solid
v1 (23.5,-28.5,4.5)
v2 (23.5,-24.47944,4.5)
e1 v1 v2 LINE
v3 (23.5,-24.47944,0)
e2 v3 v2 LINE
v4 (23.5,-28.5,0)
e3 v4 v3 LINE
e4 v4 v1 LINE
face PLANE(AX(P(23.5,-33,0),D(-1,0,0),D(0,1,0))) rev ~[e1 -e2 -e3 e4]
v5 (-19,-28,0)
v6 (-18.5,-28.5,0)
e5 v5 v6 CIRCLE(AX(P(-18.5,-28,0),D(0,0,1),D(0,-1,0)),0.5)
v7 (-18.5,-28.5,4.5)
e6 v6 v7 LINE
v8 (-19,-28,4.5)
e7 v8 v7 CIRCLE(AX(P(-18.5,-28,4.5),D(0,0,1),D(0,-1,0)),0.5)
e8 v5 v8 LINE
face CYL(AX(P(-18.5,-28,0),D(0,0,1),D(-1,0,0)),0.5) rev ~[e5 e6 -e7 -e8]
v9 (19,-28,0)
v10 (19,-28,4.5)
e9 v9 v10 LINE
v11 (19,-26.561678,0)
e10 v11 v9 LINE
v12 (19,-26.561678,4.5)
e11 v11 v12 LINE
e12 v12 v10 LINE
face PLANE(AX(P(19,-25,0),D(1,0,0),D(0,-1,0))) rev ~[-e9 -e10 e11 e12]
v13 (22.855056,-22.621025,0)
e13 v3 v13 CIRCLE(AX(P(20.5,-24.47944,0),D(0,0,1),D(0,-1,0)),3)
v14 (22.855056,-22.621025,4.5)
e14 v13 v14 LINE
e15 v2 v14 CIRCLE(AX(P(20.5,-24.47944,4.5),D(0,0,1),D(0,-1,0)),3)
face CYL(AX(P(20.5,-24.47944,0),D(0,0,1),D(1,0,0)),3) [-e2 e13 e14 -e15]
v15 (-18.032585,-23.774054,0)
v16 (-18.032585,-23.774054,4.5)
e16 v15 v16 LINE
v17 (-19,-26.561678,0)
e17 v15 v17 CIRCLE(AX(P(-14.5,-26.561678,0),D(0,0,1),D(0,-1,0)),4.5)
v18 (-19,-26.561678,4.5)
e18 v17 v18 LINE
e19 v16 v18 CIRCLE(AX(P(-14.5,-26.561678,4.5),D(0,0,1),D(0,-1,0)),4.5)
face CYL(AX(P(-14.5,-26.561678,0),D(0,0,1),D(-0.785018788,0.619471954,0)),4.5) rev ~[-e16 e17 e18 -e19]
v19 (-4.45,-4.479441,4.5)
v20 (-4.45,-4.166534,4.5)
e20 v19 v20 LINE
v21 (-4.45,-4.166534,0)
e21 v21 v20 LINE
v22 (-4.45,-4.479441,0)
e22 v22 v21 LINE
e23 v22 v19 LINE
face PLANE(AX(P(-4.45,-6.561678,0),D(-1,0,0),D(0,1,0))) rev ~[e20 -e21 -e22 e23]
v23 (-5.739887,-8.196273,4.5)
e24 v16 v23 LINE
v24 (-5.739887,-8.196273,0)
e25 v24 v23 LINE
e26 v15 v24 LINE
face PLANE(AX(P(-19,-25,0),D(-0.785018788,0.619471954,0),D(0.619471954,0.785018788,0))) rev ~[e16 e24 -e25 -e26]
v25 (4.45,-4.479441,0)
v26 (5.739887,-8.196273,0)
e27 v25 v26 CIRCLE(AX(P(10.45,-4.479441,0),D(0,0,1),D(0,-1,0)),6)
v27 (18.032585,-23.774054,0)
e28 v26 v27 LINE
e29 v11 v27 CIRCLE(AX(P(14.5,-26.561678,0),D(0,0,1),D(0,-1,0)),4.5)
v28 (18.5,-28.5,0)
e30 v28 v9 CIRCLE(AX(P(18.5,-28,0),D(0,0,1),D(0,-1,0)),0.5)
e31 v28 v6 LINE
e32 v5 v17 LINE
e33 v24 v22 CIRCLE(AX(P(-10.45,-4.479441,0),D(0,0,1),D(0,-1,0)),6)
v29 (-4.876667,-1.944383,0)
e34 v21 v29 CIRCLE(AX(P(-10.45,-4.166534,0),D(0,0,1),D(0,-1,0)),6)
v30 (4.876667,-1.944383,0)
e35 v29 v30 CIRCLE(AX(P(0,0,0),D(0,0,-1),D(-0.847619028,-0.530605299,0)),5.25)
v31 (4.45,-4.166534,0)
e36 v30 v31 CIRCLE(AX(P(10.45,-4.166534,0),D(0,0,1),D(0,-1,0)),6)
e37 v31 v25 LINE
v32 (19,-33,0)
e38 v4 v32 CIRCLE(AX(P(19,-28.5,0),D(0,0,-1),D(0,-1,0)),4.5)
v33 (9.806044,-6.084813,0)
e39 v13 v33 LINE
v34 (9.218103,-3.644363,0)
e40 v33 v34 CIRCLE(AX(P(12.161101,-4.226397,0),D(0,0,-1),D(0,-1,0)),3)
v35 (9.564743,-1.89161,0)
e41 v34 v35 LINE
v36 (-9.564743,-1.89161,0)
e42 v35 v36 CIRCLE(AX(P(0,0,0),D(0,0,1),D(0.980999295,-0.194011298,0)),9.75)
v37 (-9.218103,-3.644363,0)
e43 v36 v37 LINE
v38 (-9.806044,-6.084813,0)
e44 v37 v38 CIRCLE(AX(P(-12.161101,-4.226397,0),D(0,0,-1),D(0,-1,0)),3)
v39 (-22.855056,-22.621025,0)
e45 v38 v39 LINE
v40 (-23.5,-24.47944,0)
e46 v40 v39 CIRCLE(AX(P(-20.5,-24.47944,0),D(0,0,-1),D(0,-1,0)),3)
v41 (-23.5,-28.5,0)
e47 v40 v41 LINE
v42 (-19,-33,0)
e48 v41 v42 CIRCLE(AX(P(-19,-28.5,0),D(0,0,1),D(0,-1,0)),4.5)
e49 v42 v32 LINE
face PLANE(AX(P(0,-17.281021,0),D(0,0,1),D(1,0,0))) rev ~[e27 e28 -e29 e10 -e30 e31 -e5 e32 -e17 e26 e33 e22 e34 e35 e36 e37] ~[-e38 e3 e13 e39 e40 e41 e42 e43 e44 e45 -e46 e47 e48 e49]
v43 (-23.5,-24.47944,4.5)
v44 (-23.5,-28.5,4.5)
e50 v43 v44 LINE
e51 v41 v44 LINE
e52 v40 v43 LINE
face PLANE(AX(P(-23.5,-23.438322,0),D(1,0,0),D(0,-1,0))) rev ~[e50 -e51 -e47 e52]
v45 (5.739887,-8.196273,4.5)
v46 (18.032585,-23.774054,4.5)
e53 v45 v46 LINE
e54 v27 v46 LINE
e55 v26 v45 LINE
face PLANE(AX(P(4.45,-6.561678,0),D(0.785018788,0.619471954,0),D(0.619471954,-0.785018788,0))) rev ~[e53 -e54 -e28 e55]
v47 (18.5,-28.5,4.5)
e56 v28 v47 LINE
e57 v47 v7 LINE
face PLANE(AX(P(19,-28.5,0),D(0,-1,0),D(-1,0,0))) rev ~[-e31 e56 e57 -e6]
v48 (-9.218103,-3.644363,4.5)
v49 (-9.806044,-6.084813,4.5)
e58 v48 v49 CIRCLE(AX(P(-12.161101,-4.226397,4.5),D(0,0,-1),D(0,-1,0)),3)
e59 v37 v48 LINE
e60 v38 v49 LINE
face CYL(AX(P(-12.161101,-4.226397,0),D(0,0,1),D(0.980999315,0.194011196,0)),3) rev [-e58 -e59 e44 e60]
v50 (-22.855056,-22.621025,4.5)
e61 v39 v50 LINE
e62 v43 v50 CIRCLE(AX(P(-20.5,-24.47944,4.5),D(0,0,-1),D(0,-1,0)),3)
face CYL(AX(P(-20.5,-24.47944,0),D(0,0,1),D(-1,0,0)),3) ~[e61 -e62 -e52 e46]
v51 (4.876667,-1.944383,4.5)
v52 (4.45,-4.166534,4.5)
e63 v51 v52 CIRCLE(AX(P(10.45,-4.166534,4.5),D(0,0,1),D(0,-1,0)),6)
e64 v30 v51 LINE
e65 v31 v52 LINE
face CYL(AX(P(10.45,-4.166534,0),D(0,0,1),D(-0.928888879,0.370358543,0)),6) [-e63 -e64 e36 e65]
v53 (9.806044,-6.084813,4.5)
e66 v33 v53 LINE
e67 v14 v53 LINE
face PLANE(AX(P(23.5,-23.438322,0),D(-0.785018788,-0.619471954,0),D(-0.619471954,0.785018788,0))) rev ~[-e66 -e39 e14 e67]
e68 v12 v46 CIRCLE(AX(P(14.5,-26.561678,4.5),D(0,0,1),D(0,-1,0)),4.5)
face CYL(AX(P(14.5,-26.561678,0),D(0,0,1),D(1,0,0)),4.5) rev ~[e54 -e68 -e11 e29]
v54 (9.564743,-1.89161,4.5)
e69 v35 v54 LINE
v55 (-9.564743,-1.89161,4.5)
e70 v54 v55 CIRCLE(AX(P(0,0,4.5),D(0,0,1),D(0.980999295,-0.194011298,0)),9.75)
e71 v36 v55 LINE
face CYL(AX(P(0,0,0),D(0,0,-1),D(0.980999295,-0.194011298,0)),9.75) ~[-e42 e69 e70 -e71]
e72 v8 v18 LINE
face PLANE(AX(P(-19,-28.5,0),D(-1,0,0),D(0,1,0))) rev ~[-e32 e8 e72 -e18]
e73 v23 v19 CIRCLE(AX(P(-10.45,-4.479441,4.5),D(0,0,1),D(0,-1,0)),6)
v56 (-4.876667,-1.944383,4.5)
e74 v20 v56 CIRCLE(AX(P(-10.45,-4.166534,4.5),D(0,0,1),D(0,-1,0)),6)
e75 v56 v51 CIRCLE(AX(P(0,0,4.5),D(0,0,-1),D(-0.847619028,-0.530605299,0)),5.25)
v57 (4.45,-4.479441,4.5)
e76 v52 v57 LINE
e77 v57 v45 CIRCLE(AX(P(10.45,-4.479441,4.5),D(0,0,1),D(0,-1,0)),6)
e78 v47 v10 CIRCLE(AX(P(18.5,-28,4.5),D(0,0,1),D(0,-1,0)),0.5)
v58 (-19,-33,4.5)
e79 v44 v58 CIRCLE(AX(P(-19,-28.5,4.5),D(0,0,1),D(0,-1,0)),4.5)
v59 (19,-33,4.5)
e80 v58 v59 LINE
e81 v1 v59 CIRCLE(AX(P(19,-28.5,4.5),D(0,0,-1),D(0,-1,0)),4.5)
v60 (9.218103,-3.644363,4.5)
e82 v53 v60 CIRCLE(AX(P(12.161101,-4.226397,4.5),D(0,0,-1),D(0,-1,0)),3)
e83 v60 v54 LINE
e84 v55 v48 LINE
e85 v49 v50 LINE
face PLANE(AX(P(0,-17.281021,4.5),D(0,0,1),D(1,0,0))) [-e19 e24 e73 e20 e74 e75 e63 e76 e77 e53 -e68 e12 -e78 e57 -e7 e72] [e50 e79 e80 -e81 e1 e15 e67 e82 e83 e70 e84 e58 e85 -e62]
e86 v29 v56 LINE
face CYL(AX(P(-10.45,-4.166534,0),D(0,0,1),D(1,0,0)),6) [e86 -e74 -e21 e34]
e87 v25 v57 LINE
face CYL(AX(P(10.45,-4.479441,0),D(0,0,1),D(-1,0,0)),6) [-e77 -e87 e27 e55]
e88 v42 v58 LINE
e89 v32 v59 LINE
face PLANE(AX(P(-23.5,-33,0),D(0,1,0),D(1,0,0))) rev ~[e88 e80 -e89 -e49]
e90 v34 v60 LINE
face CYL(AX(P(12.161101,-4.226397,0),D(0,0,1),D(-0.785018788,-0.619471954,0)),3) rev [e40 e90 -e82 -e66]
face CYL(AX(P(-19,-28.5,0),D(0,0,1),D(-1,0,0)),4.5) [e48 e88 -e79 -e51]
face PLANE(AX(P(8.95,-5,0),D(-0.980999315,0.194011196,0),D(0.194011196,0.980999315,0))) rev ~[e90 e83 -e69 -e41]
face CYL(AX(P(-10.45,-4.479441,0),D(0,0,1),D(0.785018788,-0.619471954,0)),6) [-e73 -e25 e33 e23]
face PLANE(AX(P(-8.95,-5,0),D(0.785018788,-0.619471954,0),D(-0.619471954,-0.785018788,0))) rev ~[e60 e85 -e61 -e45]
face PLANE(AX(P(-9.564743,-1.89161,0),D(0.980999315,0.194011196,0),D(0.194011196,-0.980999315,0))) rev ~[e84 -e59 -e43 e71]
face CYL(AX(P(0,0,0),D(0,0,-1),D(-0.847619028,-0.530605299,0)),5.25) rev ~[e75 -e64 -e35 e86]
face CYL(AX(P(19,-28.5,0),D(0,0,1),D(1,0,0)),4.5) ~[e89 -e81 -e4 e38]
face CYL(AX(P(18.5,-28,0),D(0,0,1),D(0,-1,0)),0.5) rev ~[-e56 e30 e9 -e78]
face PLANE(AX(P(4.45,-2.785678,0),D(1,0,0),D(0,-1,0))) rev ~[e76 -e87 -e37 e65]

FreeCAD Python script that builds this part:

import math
import FreeCAD as App
import Part
import Sketcher


def edges_at(feature, points):
    """Names of the edges that pass closest to the given points."""
    edges = feature.Shape.Edges
    near = lambda p: min(range(len(edges)), key=lambda i: edges[i].distToShape(Part.Vertex(*p))[0])
    return sorted({f"Edge{near(p) + 1}" for p in points})

doc = App.newDocument("Part")
body = doc.addObject("PartDesign::Body", "Body")

# Sketch on XY plane
sketch1 = doc.addObject("Sketcher::SketchObject", "Sketch")
body.addObject(sketch1)
sketch1.AttachmentSupport = (doc.XY_Plane, [""])
sketch1.MapMode = "FlatFace"
sketch1.addGeometry(Part.ArcOfCircle(Part.Circle(App.Vector(0, 0, 0), App.Vector(0, 0, 1), 9.7), math.radians(-11), math.radians(191)), False)
sketch1.addGeometry(Part.LineSegment(App.Vector(-9.6, -1.9, 0), App.Vector(-8.9, -5, 0)), False)
sketch1.addGeometry(Part.LineSegment(App.Vector(-8.9, -5, 0), App.Vector(-23.5, -23.4, 0)), False)
sketch1.addGeometry(Part.LineSegment(App.Vector(-23.5, -23.4, 0), App.Vector(-23.5, -33, 0)), False)
sketch1.addGeometry(Part.LineSegment(App.Vector(-23.5, -33, 0), App.Vector(23.5, -33, 0)), False)
sketch1.addGeometry(Part.LineSegment(App.Vector(23.5, -33, 0), App.Vector(23.5, -23.4, 0)), False)
sketch1.addGeometry(Part.LineSegment(App.Vector(23.5, -23.4, 0), App.Vector(8.9, -5, 0)), False)
sketch1.addGeometry(Part.LineSegment(App.Vector(8.9, -5, 0), App.Vector(9.6, -1.9, 0)), False)
sketch1.addGeometry(Part.LineSegment(App.Vector(-4.5, -6.6, 0), App.Vector(-4.5, -2.8, 0)), False)
sketch1.addGeometry(Part.ArcOfCircle(Part.Circle(App.Vector(0, 0, 0), App.Vector(0, 0, 1), 5.3), math.radians(-32), math.radians(212)), False)
sketch1.addGeometry(Part.LineSegment(App.Vector(4.5, -2.8, 0), App.Vector(4.5, -6.6, 0)), False)
sketch1.addGeometry(Part.LineSegment(App.Vector(4.5, -6.6, 0), App.Vector(19, -25, 0)), False)
sketch1.addGeometry(Part.LineSegment(App.Vector(19, -25, 0), App.Vector(19, -28.5, 0)), False)
sketch1.addGeometry(Part.LineSegment(App.Vector(19, -28.5, 0), App.Vector(-19, -28.5, 0)), False)
sketch1.addGeometry(Part.LineSegment(App.Vector(-19, -28.5, 0), App.Vector(-19, -25, 0)), False)
sketch1.addGeometry(Part.LineSegment(App.Vector(-19, -25, 0), App.Vector(-4.5, -6.6, 0)), False)
sketch1.addConstraint(Sketcher.Constraint("Tangent", 0, 2, 1, 1))
sketch1.addConstraint(Sketcher.Constraint("Coincident", 1, 2, 2, 1))
sketch1.addConstraint(Sketcher.Constraint("Coincident", 2, 2, 3, 1))
sketch1.addConstraint(Sketcher.Constraint("Coincident", 3, 2, 4, 1))
sketch1.addConstraint(Sketcher.Constraint("Coincident", 4, 2, 5, 1))
sketch1.addConstraint(Sketcher.Constraint("Coincident", 5, 2, 6, 1))
sketch1.addConstraint(Sketcher.Constraint("Coincident", 6, 2, 7, 1))
sketch1.addConstraint(Sketcher.Constraint("Tangent", 7, 2, 0, 1))
sketch1.addConstraint(Sketcher.Constraint("Coincident", 8, 2, 9, 2))
sketch1.addConstraint(Sketcher.Constraint("Coincident", 9, 1, 10, 1))
sketch1.addConstraint(Sketcher.Constraint("Coincident", 10, 2, 11, 1))
sketch1.addConstraint(Sketcher.Constraint("Coincident", 11, 2, 12, 1))
sketch1.addConstraint(Sketcher.Constraint("Coincident", 12, 2, 13, 1))
sketch1.addConstraint(Sketcher.Constraint("Coincident", 13, 2, 14, 1))
sketch1.addConstraint(Sketcher.Constraint("Coincident", 14, 2, 15, 1))
sketch1.addConstraint(Sketcher.Constraint("Coincident", 15, 2, 8, 1))
sketch1.addConstraint(Sketcher.Constraint("Vertical", 3))
sketch1.addConstraint(Sketcher.Constraint("Horizontal", 4))
sketch1.addConstraint(Sketcher.Constraint("Vertical", 5))
sketch1.addConstraint(Sketcher.Constraint("Vertical", 8))
sketch1.addConstraint(Sketcher.Constraint("Vertical", 10))
sketch1.addConstraint(Sketcher.Constraint("Vertical", 12))
sketch1.addConstraint(Sketcher.Constraint("Horizontal", 13))
sketch1.addConstraint(Sketcher.Constraint("Vertical", 14))
sketch1.addConstraint(Sketcher.Constraint("Coincident", 0, 3, -1, 1))
sketch1.addConstraint(Sketcher.Constraint("Coincident", 9, 3, -1, 1))
sketch1.addConstraint(Sketcher.Constraint("Symmetric", 2, 2, 5, 2, -2))
sketch1.addConstraint(Sketcher.Constraint("Symmetric", 1, 2, 6, 2, -2))
sketch1.addConstraint(Sketcher.Constraint("Symmetric", 11, 2, 14, 2, -2))
sketch1.addConstraint(Sketcher.Constraint("Symmetric", 10, 2, 15, 2, -2))
sketch1.addConstraint(Sketcher.Constraint("Parallel", 6, 11))
sketch1.addConstraint(Sketcher.Constraint("Equal", 6, 11))
sketch1.addConstraint(Sketcher.Constraint("DistanceX", 4, 1, 4, 2, 47.0))
sketch1.addConstraint(Sketcher.Constraint("DistanceX", 13, 2, 13, 1, 38.0))
sketch1.addConstraint(Sketcher.Constraint("Radius", 0, 9.75))
sketch1.addConstraint(Sketcher.Constraint("Radius", 9, 5.25))
sketch1.addConstraint(Sketcher.Constraint("DistanceY", 12, 2, 12, 1, 3.5))
sketch1.addConstraint(Sketcher.Constraint("DistanceY", 1, 2, -1, 1, 5.0))
sketch1.addConstraint(Sketcher.Constraint("DistanceY", 3, 2, -1, 1, 33.0))
sketch1.addConstraint(Sketcher.Constraint("DistanceY", 11, 2, -1, 1, 25.0))
sketch1.addConstraint(Sketcher.Constraint("DistanceX", 1, 2, 6, 2, 17.9))
sketch1.addConstraint(Sketcher.Constraint("DistanceY", 8, 1, 8, 2, 3.776))
pad1 = doc.addObject("PartDesign::Pad", "Pad")
body.addObject(pad1)
pad1.Profile = sketch1
pad1.Length = 4.5
doc.recompute()

fillet = doc.addObject("PartDesign::Fillet", "Fillet")
body.addObject(fillet)
fillet.Base = (pad1, edges_at(pad1, [
    (-19, -25, 2.25),
    (19, -25, 2.25),
    (-23.5, -33, 2.25),
    (23.5, -33, 2.25),
]))
fillet.Radius = 4.5
doc.recompute()

fillet2 = doc.addObject("PartDesign::Fillet", "Fillet001")
body.addObject(fillet2)
fillet2.Base = (fillet, edges_at(fillet, [
    (-8.95, -5, 2.25),
    (8.95, -5, 2.25),
    (23.5, -23.438, 2.25),
    (-23.5, -23.438, 2.25),
]))
fillet2.Radius = 3
doc.recompute()

fillet3 = doc.addObject("PartDesign::Fillet", "Fillet002")
body.addObject(fillet3)
fillet3.Base = (fillet2, edges_at(fillet2, [(-19, -28.5, 2.25), (19, -28.5, 2.25)]))
fillet3.Radius = 0.5
doc.recompute()

fillet4 = doc.addObject("PartDesign::Fillet", "Fillet003")
body.addObject(fillet4)
fillet4.Base = (fillet3, edges_at(fillet3, [
    (4.45, -6.562, 2.25),
    (-4.45, -6.562, 2.25),
    (4.45, -2.786, 2.25),
    (-4.45, -2.786, 2.25),
]))
fillet4.Radius = 6

doc.recompute()
